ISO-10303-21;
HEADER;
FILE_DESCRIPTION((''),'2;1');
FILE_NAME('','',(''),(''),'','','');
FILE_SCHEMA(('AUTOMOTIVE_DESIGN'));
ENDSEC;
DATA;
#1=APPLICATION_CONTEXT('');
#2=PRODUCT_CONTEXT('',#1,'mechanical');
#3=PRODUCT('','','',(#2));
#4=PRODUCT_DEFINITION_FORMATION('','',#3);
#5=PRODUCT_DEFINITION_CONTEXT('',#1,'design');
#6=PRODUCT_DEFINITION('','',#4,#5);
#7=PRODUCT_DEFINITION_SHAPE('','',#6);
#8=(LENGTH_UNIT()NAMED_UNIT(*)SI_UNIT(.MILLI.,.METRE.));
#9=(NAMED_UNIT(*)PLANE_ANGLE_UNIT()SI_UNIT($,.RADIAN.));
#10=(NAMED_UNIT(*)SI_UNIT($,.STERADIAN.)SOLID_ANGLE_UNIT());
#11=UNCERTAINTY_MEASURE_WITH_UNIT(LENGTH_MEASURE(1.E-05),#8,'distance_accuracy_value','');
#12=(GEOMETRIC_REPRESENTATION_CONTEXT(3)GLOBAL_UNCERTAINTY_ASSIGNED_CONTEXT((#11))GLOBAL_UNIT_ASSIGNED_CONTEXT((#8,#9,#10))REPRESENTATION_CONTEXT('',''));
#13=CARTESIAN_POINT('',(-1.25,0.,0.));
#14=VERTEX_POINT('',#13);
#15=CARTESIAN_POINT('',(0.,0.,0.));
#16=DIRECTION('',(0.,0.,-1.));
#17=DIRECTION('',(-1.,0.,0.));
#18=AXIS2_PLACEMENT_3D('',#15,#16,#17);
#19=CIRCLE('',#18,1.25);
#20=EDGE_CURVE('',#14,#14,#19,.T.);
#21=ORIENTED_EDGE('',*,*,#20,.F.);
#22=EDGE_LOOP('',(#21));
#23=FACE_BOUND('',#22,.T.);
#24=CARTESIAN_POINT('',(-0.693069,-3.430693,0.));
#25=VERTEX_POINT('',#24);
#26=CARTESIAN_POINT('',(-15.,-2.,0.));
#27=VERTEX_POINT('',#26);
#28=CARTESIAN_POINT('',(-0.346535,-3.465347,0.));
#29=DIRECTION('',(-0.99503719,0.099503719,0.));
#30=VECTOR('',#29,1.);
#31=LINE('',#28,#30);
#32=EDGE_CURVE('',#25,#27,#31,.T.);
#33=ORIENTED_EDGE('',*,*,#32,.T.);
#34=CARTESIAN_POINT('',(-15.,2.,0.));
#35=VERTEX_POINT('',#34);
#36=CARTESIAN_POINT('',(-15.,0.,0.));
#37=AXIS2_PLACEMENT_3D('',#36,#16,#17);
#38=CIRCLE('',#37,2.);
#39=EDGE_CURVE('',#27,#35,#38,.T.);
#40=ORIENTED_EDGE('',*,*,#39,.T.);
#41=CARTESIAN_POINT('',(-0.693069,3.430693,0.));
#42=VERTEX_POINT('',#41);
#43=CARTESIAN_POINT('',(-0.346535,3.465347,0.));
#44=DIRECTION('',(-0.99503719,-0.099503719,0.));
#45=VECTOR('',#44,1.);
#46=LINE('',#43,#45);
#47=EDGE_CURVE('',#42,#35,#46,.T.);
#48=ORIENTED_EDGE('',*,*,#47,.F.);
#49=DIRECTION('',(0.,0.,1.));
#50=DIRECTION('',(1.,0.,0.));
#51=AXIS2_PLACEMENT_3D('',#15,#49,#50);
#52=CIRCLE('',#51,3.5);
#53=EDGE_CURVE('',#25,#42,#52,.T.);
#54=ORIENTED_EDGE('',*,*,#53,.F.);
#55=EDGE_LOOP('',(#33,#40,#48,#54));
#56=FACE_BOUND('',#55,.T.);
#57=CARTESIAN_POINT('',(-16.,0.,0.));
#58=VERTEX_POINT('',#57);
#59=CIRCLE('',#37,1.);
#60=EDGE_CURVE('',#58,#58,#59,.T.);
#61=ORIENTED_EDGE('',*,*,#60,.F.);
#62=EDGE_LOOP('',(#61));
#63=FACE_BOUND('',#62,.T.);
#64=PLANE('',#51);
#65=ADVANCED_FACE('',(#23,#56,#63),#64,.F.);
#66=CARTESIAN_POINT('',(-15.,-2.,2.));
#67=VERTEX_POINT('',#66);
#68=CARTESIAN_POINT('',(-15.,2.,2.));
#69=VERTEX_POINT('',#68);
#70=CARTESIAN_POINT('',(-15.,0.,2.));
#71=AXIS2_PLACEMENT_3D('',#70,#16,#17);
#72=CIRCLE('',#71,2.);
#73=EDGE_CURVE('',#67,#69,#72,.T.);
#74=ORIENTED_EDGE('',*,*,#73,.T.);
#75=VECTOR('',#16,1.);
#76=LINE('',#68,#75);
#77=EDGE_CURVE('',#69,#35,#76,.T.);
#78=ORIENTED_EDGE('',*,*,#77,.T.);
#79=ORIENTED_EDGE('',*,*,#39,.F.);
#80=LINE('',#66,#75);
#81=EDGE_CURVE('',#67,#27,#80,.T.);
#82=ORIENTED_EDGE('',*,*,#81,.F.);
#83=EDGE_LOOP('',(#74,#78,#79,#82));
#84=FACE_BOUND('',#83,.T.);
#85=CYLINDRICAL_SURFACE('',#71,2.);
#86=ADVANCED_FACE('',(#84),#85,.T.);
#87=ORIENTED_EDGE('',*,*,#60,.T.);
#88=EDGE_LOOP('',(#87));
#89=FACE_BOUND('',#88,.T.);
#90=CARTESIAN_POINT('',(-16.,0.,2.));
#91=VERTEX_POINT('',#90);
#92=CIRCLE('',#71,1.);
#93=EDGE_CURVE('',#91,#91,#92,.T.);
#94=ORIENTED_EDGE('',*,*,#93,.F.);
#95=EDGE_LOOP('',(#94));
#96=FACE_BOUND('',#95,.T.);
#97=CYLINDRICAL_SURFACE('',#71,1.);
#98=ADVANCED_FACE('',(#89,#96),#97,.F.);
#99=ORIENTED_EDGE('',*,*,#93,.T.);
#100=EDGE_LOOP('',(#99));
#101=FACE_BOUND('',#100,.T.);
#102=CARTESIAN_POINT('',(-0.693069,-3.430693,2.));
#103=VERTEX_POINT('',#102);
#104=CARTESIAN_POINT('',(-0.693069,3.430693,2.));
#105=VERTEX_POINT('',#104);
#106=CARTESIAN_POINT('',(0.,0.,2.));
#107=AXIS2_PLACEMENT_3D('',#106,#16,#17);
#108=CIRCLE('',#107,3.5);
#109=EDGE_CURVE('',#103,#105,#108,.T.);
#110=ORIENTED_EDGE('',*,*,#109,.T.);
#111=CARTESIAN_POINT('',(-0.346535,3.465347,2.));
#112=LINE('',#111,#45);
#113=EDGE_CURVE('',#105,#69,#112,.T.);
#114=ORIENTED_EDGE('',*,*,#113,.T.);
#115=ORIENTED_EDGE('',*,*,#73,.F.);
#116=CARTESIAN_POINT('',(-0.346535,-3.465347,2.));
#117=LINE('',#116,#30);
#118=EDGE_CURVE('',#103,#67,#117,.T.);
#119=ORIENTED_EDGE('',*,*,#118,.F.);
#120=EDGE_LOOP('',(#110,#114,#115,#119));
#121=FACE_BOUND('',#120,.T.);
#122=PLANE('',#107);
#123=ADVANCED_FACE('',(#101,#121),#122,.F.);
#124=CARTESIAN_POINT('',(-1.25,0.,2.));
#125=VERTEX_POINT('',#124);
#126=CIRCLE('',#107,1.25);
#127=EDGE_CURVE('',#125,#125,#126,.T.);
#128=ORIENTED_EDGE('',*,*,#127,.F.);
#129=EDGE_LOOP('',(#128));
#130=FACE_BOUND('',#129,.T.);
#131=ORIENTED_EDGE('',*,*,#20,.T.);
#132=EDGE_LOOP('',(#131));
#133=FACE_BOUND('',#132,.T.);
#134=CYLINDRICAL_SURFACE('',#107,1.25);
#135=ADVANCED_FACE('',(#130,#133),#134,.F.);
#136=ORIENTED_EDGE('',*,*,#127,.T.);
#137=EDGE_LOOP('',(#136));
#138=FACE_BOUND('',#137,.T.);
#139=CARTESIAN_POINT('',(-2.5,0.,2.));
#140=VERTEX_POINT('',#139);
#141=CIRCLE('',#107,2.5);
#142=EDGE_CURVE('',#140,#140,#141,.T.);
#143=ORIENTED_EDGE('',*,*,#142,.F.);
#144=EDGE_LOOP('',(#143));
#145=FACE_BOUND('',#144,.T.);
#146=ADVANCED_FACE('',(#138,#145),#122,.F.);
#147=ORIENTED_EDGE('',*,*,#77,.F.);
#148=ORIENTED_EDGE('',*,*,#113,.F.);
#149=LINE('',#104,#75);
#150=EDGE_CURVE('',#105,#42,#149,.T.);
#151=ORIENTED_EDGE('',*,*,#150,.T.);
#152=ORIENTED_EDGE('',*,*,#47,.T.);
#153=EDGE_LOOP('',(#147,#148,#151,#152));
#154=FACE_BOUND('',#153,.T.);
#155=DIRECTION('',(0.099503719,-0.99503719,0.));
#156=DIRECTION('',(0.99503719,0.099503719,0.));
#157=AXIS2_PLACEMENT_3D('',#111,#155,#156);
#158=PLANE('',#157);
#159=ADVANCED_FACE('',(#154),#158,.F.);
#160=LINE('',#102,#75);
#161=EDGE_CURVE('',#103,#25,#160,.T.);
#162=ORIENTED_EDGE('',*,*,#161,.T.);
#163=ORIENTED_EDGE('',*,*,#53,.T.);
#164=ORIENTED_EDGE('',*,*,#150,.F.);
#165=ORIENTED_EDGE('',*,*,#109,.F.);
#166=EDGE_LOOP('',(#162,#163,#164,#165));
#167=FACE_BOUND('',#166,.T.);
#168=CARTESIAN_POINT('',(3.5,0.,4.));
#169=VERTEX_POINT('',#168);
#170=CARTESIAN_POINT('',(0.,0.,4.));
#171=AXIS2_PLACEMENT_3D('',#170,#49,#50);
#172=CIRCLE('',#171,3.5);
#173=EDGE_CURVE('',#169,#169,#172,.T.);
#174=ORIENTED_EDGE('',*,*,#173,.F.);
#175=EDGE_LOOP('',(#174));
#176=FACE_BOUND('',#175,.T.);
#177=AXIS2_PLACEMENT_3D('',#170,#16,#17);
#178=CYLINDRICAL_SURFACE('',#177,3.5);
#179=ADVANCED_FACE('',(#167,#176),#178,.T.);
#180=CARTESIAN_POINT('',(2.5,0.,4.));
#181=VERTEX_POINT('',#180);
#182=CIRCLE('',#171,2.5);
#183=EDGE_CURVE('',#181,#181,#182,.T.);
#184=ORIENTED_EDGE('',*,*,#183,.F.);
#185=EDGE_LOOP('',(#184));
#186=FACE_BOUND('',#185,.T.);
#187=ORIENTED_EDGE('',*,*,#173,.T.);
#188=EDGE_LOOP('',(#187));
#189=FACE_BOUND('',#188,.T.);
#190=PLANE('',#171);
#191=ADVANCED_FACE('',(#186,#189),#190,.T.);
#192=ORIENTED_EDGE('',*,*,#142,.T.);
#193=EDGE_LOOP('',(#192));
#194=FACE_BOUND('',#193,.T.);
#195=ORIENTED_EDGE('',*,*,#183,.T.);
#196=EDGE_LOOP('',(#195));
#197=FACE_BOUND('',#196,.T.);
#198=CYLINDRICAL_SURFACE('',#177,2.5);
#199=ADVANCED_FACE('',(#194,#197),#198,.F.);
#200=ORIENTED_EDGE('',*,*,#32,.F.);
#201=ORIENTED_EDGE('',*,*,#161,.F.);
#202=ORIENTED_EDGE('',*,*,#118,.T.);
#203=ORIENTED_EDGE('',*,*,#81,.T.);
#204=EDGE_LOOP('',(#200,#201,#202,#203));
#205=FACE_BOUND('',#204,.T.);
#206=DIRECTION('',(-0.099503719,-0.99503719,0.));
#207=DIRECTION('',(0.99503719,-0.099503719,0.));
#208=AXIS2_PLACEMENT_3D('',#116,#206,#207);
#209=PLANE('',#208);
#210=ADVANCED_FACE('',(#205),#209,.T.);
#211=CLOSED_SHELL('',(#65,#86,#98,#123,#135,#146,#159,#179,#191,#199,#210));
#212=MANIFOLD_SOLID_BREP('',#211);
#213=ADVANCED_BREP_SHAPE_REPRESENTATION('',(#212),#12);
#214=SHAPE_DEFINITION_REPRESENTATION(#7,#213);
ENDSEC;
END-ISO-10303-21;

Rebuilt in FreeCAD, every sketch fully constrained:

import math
import FreeCAD as App
import Part
import Sketcher

V = App.Vector
Q = App.Units.Quantity

doc = App.newDocument("Part")
body = doc.addObject("PartDesign::Body", "Body")

sketch1 = body.newObject("Sketcher::SketchObject", "Sketch")
sketch1.AttachmentSupport = (doc.getObject("XY_Plane"), [""])
sketch1.MapMode = "FlatFace"
sketch1.addGeometry(Part.Circle(V(0, 0, 0), V(0, 0, 1), 3.5), False)
sketch1.addGeometry(Part.Circle(V(0, 0, 0), V(0, 0, 1), 2.5), False)
sketch1.addConstraint(Sketcher.Constraint("Coincident", 0, 3, -1, 1))
sketch1.addConstraint(Sketcher.Constraint("Coincident", 1, 3, -1, 1))
sketch1.addConstraint(Sketcher.Constraint("Diameter", 0, Q("7 mm")))
sketch1.addConstraint(Sketcher.Constraint("Diameter", 1, Q("5 mm")))
pad1 = body.newObject("PartDesign::Pad", "Pad")
pad1.Profile = sketch1
pad1.Length = 4

sketch2 = body.newObject("Sketcher::SketchObject", "Sketch001")
sketch2.AttachmentSupport = (doc.getObject("XY_Plane"), [""])
sketch2.MapMode = "FlatFace"
sketch2.addGeometry(Part.LineSegment(V(-15, 2, 0), V(-0.693069, 3.430693, 0)), False)
sketch2.addGeometry(Part.ArcOfCircle(Part.Circle(V(0, 0, 0), V(0, 0, 1), 3.5), math.radians(101.421186), math.radians(180)), False)
sketch2.addGeometry(Part.ArcOfCircle(Part.Circle(V(0, 0, 0), V(0, 0, 1), 3.5), math.radians(180), math.radians(258.578814)), False)
sketch2.addGeometry(Part.LineSegment(V(-0.693069, -3.430693, 0), V(-15, -2, 0)), False)
sketch2.addGeometry(Part.ArcOfCircle(Part.Circle(V(-15, 0, 0), V(0, 0, 1), 2), math.radians(90), math.radians(270)), False)
sketch2.addGeometry(Part.Circle(V(-15, 0, 0), V(0, 0, 1), 1), False)
sketch2.addConstraint(Sketcher.Constraint("Coincident", 0, 2, 1, 1))
sketch2.addConstraint(Sketcher.Constraint("Tangent", 1, 2, 2, 1))
sketch2.addConstraint(Sketcher.Constraint("Coincident", 2, 2, 3, 1))
sketch2.addConstraint(Sketcher.Constraint("Coincident", 3, 2, 4, 2))
sketch2.addConstraint(Sketcher.Constraint("Coincident", 4, 1, 0, 1))
sketch2.addConstraint(Sketcher.Constraint("Coincident", 1, 3, -1, 1))
sketch2.addConstraint(Sketcher.Constraint("Coincident", 5, 3, 4, 3))
sketch2.addConstraint(Sketcher.Constraint("Equal", 1, 2))
sketch2.addConstraint(Sketcher.Constraint("Symmetric", 3, 2, 4, 1, -1))
sketch2.addConstraint(Sketcher.Constraint("PointOnObject", 1, 2, -1))
sketch2.addConstraint(Sketcher.Constraint("Vertical", 0, 2, 2, 2))
sketch2.addConstraint(Sketcher.Constraint("Vertical", 5, 3, 3, 2))
sketch2.addConstraint(Sketcher.Constraint("Diameter", 5, Q("2 mm")))
sketch2.addConstraint(Sketcher.Constraint("Radius", 4, Q("2 mm")))
sketch2.addConstraint(Sketcher.Constraint("Radius", 1, Q("3.5 mm")))
sketch2.addConstraint(Sketcher.Constraint("DistanceX", 4, 3, -1, 1, Q("15 mm")))
sketch2.addConstraint(Sketcher.Constraint("DistanceX", 0, 2, -1, 1, Q("0.693069 mm")))
pad2 = body.newObject("PartDesign::Pad", "Pad001")
pad2.Profile = sketch2
pad2.Length = 2

sketch3 = body.newObject("Sketcher::SketchObject", "Sketch002")
sketch3.AttachmentSupport = (doc.getObject("XY_Plane"), [""])
sketch3.MapMode = "FlatFace"
sketch3.addGeometry(Part.Circle(V(0, 0, 0), V(0, 0, 1), 2.5), False)
sketch3.addGeometry(Part.Circle(V(0, 0, 0), V(0, 0, 1), 1.25), False)
sketch3.addConstraint(Sketcher.Constraint("Coincident", 0, 3, -1, 1))
sketch3.addConstraint(Sketcher.Constraint("Coincident", 1, 3, -1, 1))
sketch3.addConstraint(Sketcher.Constraint("Diameter", 0, Q("5 mm")))
sketch3.addConstraint(Sketcher.Constraint("Diameter", 1, Q("2.5 mm")))
pad3 = body.newObject("PartDesign::Pad", "Pad002")
pad3.Profile = sketch3
pad3.Length = 2

doc.recompute()
